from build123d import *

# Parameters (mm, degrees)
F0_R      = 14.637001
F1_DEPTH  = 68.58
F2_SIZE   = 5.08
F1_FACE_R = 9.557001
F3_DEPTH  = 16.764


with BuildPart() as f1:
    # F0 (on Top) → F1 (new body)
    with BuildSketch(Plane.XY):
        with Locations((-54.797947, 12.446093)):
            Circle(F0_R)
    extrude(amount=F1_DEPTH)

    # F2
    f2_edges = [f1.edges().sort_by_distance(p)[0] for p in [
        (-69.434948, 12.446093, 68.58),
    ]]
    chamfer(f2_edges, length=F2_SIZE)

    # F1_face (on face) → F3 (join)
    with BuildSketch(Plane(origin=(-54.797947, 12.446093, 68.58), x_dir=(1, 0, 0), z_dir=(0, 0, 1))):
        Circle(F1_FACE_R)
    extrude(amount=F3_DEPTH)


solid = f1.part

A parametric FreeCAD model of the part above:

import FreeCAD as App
import Part
import Sketcher

V = App.Vector
Q = App.Units.Quantity


def edges_at(feature, points):
    """Names of the edges that pass closest to the given points."""
    edges = feature.Shape.Edges
    near = lambda p: min(range(len(edges)), key=lambda i: edges[i].distToShape(Part.Vertex(*p))[0])
    return sorted({f"Edge{near(p) + 1}" for p in points})

doc = App.newDocument("Part")
body = doc.addObject("PartDesign::Body", "Body")

sketch1 = doc.addObject("Sketcher::SketchObject", "Sketch")
body.addObject(sketch1)
sketch1.AttachmentSupport = (doc.XY_Plane, [""])
sketch1.MapMode = "FlatFace"
sketch1.addGeometry(Part.Circle(V(-54.797947, 12.446093, 0), V(0, 0, 1), 14.637001), False)
sketch1.addConstraint([
    Sketcher.Constraint("Diameter", 0, 29.274002),
    Sketcher.Constraint("DistanceX", 0, 3, -1, 1, 54.797947),
    Sketcher.Constraint("DistanceY", -1, 1, 0, 3, 12.446093),
])
pad1 = doc.addObject("PartDesign::Pad", "Pad")
body.addObject(pad1)
pad1.Profile = sketch1
pad1.Length = Q("2.7 in")
doc.recompute()

chamfer = doc.addObject("PartDesign::Chamfer", "Chamfer")
body.addObject(chamfer)
chamfer.Base = (pad1, edges_at(pad1, [(-69.435, 12.446, 68.58)]))
chamfer.Size = Q("0.2 in")

sketch2 = doc.addObject("Sketcher::SketchObject", "Sketch001")
body.addObject(sketch2)
sketch2.AttachmentSupport = (doc.XY_Plane, [""])
sketch2.MapMode = "FlatFace"
sketch2.AttachmentOffset = App.Placement(V(0, 0, 2.7 * 25.4), App.Rotation())
sketch2.addGeometry(Part.Circle(V(-54.797947, 12.446093, 0), V(0, 0, 1), 9.557001), False)
sketch2.addConstraint([
    Sketcher.Constraint("Diameter", 0, 19.114002),
    Sketcher.Constraint("DistanceX", 0, 3, -1, 1, 54.797947),
    Sketcher.Constraint("DistanceY", -1, 1, 0, 3, 12.446093),
])
pad2 = doc.addObject("PartDesign::Pad", "Pad001")
body.addObject(pad2)
pad2.Profile = sketch2
pad2.Length = Q("0.66 in")

doc.recompute()
